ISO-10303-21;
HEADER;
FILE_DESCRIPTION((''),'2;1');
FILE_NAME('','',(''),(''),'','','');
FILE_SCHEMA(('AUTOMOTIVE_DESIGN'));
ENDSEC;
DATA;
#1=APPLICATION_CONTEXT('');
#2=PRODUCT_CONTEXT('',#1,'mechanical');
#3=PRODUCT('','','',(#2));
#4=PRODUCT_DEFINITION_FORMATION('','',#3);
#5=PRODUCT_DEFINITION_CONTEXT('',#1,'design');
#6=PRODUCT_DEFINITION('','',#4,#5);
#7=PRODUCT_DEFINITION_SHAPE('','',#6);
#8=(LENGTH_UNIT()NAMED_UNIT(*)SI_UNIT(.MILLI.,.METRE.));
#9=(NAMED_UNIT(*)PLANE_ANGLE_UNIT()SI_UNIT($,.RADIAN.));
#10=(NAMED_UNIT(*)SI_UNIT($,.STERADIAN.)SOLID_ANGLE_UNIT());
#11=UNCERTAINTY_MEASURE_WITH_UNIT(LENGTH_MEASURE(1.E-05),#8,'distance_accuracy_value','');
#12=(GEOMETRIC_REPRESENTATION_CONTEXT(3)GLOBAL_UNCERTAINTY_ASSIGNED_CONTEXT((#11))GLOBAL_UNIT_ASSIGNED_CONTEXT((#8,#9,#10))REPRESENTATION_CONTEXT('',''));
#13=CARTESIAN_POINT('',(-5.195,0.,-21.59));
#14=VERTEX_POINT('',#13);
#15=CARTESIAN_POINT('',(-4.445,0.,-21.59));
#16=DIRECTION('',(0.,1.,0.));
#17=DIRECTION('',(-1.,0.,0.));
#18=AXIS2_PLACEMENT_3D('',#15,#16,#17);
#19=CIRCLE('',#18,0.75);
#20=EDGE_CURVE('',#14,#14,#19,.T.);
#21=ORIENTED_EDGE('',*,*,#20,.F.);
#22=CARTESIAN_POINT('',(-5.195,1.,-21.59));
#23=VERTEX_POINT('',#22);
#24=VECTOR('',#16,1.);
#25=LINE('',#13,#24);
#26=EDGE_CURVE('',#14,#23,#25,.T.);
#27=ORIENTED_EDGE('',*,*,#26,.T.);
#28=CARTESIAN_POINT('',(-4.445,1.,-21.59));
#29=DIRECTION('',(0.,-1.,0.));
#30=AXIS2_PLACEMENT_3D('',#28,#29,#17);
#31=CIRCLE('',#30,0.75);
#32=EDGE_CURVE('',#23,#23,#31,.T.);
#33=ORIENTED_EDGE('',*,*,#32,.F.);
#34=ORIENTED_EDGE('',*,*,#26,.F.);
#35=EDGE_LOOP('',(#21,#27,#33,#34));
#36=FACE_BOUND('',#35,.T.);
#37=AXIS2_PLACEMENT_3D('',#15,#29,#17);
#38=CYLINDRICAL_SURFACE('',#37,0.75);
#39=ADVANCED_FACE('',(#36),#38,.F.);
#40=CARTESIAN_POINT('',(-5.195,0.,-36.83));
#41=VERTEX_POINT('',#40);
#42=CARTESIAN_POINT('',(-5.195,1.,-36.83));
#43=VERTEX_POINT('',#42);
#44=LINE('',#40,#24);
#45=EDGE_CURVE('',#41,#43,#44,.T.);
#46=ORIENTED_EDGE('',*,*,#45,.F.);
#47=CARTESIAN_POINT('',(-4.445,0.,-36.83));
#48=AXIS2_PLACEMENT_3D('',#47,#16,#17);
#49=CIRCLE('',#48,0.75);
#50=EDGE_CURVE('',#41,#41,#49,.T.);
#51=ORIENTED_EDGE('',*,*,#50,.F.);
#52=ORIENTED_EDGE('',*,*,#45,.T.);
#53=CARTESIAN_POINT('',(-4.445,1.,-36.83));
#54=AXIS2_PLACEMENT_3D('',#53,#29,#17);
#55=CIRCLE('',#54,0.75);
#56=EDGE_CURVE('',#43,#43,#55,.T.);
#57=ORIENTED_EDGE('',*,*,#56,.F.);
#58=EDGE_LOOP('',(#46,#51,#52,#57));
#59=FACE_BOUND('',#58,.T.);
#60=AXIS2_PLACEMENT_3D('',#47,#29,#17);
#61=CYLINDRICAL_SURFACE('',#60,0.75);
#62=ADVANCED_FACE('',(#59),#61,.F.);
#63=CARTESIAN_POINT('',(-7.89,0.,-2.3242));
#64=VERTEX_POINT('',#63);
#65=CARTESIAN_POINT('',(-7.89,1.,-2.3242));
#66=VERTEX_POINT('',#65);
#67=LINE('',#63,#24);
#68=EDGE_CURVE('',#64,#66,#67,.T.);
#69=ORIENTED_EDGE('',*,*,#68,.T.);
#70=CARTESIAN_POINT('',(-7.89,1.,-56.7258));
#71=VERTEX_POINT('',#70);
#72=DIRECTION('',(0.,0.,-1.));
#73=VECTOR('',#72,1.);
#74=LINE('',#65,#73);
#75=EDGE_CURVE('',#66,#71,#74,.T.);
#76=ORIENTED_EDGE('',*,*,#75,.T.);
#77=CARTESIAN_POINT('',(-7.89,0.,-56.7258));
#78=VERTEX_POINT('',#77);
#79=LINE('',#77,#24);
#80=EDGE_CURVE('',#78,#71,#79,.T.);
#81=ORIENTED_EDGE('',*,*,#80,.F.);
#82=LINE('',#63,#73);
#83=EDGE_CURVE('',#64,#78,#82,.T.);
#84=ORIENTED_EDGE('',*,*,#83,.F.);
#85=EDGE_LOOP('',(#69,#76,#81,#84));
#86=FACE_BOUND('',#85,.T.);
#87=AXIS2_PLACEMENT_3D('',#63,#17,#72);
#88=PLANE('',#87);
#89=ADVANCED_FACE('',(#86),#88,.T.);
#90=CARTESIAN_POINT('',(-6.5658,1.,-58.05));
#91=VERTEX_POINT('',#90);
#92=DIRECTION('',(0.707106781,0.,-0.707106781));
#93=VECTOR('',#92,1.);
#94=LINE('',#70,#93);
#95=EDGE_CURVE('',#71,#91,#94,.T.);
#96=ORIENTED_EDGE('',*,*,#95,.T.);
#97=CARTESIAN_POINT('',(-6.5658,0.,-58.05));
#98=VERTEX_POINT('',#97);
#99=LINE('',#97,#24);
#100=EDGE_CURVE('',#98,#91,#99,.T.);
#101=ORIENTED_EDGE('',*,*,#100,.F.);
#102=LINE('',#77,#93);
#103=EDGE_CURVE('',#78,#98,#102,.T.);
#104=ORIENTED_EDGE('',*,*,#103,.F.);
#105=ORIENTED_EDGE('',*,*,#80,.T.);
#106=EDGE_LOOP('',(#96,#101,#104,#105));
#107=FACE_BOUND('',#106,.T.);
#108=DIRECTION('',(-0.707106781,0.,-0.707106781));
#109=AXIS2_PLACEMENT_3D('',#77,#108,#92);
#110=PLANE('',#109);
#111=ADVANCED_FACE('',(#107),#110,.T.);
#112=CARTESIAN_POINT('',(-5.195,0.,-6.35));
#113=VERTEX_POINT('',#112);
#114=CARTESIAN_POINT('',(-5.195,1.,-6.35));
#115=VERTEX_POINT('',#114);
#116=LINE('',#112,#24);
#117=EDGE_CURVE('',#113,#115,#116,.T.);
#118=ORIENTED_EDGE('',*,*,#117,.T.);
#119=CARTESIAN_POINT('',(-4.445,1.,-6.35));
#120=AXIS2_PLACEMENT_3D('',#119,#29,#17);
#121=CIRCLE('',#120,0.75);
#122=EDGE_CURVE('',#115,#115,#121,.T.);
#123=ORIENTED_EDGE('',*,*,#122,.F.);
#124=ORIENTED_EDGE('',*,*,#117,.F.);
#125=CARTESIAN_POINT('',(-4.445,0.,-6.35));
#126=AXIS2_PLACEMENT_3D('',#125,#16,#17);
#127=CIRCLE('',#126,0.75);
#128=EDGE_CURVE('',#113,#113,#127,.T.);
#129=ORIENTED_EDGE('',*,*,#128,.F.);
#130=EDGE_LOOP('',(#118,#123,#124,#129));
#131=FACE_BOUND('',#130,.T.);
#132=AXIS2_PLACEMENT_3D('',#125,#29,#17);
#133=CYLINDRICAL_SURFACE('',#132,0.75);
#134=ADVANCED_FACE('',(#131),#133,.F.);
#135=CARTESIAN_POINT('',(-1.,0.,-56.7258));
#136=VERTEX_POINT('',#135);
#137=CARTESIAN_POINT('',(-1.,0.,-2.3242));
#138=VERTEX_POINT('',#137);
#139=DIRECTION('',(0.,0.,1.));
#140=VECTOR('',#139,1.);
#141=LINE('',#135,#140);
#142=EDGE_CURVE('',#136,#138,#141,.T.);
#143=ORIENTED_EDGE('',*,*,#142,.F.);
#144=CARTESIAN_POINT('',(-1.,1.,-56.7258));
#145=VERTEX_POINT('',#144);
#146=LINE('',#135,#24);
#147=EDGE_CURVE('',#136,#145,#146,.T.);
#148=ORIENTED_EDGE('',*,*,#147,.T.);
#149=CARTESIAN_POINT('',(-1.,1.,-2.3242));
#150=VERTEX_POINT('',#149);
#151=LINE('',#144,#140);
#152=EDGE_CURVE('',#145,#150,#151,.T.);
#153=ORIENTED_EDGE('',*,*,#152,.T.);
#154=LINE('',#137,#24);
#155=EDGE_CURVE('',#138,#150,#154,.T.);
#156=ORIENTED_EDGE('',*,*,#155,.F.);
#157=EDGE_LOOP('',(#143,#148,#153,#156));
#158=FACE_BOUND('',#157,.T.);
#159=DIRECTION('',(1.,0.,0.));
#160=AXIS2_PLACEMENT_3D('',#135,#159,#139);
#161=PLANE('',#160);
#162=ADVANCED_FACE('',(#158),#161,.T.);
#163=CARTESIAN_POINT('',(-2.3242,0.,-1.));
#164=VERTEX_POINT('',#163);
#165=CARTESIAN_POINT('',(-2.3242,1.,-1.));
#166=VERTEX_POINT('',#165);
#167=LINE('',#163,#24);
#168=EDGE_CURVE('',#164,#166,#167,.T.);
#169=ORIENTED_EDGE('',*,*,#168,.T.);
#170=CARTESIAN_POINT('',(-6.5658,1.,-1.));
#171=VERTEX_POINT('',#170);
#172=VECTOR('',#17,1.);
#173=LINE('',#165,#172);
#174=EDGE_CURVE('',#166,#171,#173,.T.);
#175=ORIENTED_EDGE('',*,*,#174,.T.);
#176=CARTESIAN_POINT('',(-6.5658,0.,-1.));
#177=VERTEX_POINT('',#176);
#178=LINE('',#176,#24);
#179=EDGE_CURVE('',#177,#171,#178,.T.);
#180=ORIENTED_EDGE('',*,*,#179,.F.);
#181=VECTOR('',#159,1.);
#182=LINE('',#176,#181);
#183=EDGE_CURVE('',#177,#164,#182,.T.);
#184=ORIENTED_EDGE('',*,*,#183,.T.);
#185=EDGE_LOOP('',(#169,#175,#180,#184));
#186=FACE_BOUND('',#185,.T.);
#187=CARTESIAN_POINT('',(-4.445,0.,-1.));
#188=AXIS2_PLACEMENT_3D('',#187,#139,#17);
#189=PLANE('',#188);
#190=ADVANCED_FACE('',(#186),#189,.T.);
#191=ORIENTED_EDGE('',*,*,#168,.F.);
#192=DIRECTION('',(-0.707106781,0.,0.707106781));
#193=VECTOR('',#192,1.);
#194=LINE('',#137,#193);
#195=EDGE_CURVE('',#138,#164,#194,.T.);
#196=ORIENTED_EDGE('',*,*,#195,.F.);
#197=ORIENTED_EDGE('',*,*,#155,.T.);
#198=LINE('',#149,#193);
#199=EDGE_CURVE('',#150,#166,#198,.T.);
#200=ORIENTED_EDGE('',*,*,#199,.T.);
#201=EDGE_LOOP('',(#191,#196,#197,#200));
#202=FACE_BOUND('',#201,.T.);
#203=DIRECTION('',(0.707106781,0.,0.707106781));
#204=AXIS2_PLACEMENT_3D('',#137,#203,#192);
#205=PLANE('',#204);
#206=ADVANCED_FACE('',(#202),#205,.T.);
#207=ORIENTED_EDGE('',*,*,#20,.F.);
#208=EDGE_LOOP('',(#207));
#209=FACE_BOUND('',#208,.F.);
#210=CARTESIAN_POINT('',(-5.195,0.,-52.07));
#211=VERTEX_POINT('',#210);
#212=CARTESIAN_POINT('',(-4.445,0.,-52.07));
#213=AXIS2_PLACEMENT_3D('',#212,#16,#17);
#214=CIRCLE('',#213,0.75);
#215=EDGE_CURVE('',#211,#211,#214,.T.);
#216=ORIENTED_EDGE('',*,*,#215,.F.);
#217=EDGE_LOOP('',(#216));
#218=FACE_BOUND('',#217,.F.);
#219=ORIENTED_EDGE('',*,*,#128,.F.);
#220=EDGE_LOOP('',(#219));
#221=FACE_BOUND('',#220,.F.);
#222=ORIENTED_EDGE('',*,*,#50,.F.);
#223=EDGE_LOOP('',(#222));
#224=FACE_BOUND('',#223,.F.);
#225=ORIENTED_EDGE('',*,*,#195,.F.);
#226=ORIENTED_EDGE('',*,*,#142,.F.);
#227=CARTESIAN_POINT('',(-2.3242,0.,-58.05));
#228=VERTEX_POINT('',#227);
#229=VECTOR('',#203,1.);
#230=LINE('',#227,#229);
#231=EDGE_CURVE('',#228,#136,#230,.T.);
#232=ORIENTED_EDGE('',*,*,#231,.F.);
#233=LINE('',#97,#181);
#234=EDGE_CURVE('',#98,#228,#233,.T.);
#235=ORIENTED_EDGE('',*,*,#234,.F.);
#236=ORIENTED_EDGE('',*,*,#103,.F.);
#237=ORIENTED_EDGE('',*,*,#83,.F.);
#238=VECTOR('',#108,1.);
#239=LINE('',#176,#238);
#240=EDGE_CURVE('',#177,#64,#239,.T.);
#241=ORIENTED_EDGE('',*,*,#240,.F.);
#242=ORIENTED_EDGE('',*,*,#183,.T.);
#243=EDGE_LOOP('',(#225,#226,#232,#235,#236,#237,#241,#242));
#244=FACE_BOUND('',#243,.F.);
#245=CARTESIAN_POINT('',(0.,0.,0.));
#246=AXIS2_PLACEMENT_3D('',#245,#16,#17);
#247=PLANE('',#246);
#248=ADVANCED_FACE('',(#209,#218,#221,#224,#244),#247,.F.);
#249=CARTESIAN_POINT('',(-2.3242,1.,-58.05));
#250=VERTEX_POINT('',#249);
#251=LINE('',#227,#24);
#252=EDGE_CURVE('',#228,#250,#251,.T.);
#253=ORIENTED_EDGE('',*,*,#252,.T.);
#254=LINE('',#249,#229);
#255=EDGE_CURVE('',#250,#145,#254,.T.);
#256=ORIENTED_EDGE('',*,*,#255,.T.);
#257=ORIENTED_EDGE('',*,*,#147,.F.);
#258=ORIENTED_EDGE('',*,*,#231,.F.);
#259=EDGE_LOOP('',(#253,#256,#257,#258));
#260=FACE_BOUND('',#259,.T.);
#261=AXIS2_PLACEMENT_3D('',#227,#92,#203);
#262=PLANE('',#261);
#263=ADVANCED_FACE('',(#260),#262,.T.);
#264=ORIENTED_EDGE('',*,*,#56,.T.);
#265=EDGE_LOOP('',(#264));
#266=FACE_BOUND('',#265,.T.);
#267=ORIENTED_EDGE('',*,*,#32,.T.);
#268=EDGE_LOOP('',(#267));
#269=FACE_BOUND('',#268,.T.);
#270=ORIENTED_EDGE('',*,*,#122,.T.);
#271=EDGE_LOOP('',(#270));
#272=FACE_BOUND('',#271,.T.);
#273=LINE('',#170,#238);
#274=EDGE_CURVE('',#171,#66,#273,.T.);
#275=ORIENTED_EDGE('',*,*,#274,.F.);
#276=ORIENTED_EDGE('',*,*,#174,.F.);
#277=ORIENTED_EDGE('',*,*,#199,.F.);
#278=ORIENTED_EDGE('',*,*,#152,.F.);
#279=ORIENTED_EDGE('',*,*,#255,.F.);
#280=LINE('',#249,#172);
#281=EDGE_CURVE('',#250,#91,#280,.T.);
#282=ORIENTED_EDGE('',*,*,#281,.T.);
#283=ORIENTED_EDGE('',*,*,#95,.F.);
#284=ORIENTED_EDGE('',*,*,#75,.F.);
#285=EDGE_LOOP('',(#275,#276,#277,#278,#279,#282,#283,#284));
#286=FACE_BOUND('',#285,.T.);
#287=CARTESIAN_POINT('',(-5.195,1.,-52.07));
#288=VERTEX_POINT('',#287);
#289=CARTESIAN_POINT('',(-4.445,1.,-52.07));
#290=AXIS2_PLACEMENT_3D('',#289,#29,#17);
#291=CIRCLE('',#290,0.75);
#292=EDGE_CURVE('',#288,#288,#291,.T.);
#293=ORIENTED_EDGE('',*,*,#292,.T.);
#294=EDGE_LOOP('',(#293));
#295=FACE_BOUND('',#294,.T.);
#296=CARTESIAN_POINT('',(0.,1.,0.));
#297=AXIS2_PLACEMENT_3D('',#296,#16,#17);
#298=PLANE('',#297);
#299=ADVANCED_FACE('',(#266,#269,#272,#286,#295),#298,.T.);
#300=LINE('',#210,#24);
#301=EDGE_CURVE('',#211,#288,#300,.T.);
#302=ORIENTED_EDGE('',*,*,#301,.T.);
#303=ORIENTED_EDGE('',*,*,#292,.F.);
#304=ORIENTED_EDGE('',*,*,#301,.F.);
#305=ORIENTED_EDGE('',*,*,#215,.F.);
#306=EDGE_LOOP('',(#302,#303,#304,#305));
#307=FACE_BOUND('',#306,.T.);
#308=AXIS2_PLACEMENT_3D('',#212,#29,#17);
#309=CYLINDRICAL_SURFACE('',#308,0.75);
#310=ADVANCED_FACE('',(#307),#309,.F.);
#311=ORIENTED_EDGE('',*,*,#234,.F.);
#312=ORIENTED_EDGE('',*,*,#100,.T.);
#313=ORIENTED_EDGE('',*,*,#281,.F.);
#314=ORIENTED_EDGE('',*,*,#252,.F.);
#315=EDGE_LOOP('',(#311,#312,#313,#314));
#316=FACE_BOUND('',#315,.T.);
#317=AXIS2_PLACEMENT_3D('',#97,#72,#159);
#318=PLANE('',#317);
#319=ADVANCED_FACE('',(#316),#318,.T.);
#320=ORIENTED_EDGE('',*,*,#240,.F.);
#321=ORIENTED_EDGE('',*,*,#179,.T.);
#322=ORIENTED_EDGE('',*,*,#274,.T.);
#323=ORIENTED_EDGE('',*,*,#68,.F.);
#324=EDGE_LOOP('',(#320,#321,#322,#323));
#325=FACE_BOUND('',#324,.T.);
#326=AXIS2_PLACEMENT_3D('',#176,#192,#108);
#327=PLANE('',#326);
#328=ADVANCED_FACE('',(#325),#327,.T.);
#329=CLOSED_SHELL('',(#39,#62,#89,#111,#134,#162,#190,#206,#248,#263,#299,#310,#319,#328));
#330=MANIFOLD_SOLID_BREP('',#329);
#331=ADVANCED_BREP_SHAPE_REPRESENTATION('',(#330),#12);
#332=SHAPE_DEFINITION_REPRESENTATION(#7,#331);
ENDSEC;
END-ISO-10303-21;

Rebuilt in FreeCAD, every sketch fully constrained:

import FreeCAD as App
import Part
import Sketcher
Q = App.Units.Quantity

doc = App.newDocument("Part")
body = doc.addObject("PartDesign::Body", "Body")

sketch1 = body.newObject("Sketcher::SketchObject", "Sketch")
sketch1.AttachmentSupport = (doc.getObject("XZ_Plane"), [""])
sketch1.MapMode = "FlatFace"
sketch1.addGeometry([
    Part.LineSegment(App.Vector(-6.6, -1, 0), App.Vector(-2.3, -1, 0)),
    Part.LineSegment(App.Vector(-2.3, -1, 0), App.Vector(-1, -2.3, 0)),
    Part.LineSegment(App.Vector(-1, -2.3, 0), App.Vector(-1, -56.7, 0)),
    Part.LineSegment(App.Vector(-1, -56.7, 0), App.Vector(-2.3, -58, 0)),
    Part.LineSegment(App.Vector(-2.3, -58, 0), App.Vector(-6.6, -58, 0)),
    Part.LineSegment(App.Vector(-6.6, -58, 0), App.Vector(-7.9, -56.7, 0)),
    Part.LineSegment(App.Vector(-7.9, -56.7, 0), App.Vector(-7.9, -2.3, 0)),
    Part.LineSegment(App.Vector(-7.9, -2.3, 0), App.Vector(-6.6, -1, 0)),
    Part.Circle(App.Vector(-4.4, -52.1, 0), App.Vector(0, 0, 1), 0.8),
    Part.Circle(App.Vector(-4.4, -36.8, 0), App.Vector(0, 0, 1), 0.8),
    Part.Circle(App.Vector(-4.4, -21.6, 0), App.Vector(0, 0, 1), 0.8),
    Part.Circle(App.Vector(-4.4, -6.3, 0), App.Vector(0, 0, 1), 0.8),
], False)
sketch1.addConstraint([
    Sketcher.Constraint("Coincident", 0, 2, 1, 1),
    Sketcher.Constraint("Coincident", 1, 2, 2, 1),
    Sketcher.Constraint("Coincident", 2, 2, 3, 1),
    Sketcher.Constraint("Coincident", 3, 2, 4, 1),
    Sketcher.Constraint("Coincident", 4, 2, 5, 1),
    Sketcher.Constraint("Coincident", 5, 2, 6, 1),
    Sketcher.Constraint("Coincident", 6, 2, 7, 1),
    Sketcher.Constraint("Coincident", 7, 2, 0, 1),
    Sketcher.Constraint("Horizontal", 0),
    Sketcher.Constraint("Vertical", 2),
    Sketcher.Constraint("Horizontal", 4),
    Sketcher.Constraint("Vertical", 6),
    Sketcher.Constraint("Equal", 8, 9),
    Sketcher.Constraint("Equal", 9, 10),
    Sketcher.Constraint("Equal", 10, 11),
    Sketcher.Constraint("Perpendicular", 1, 3),
    Sketcher.Constraint("Perpendicular", 3, 5),
    Sketcher.Constraint("Perpendicular", 5, 7),
    Sketcher.Constraint("Horizontal", 2, 2, 5, 2),
    Sketcher.Constraint("Horizontal", 1, 2, 6, 2),
    Sketcher.Constraint("Vertical", 8, 3, 9, 3),
    Sketcher.Constraint("Vertical", 9, 3, 10, 3),
    Sketcher.Constraint("Vertical", 10, 3, 11, 3),
    Sketcher.Constraint("Vertical", 0, 2, 3, 2),
    Sketcher.Constraint("Vertical", 4, 2, 7, 2),
    Sketcher.Constraint("Diameter", 8, Q("1.5 mm")),
    Sketcher.Constraint("DistanceY", 0, 2, -1, 1, Q("1 mm")),
    Sketcher.Constraint("DistanceX", 1, 2, -1, 1, Q("1 mm")),
    Sketcher.Constraint("DistanceY", 11, 3, -1, 1, Q("6.35 mm")),
    Sketcher.Constraint("DistanceY", 8, 3, 9, 3, Q("15.24 mm")),
    Sketcher.Constraint("DistanceY", 9, 3, 10, 3, Q("15.24 mm")),
    Sketcher.Constraint("DistanceY", 10, 3, 11, 3, Q("15.24 mm")),
    Sketcher.Constraint("DistanceY", 3, 2, 11, 3, Q("51.7 mm")),
    Sketcher.Constraint("DistanceX", 5, 2, -1, 1, Q("7.89 mm")),
    Sketcher.Constraint("DistanceX", 0, 1, 0, 2, Q("4.2416 mm")),
    Sketcher.Constraint("DistanceX", 8, 3, -1, 1, Q("4.445 mm")),
])
pad1 = body.newObject("PartDesign::Pad", "Pad")
pad1.Profile = sketch1
pad1.Length = 1
pad1.Reversed = True

doc.recompute()
